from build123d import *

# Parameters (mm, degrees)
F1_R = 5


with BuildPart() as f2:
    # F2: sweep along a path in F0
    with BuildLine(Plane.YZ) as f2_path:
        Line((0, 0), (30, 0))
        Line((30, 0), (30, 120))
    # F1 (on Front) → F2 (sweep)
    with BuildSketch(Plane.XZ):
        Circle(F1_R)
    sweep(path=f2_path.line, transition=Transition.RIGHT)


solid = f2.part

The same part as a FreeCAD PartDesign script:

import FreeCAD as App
import Part
import Sketcher
from FreeCAD import Vector

doc = App.newDocument("Part")
body = doc.addObject("PartDesign::Body", "Body")

sketch1 = body.newObject("Sketcher::SketchObject", "Sketch")
sketch1.AttachmentSupport = (doc.getObject("XZ_Plane"), [""])
sketch1.MapMode = "FlatFace"
sketch1.addGeometry(Part.Circle(Vector(0, 0, 0), Vector(0, 0, 1), 5), False)
sketch1.addConstraint([
    Sketcher.Constraint("Coincident", 0, 3, -1, 1),
    Sketcher.Constraint("Diameter", 0, 10.0),
])

sketch2 = body.newObject("Sketcher::SketchObject", "Sketch001")
sketch2.AttachmentSupport = (doc.getObject("YZ_Plane"), [""])
sketch2.MapMode = "FlatFace"
sketch2.addGeometry([
    Part.LineSegment(Vector(0, 0, 0), Vector(30, 0, 0)),
    Part.LineSegment(Vector(30, 0, 0), Vector(30, 120, 0)),
], False)
sketch2.addConstraint([
    Sketcher.Constraint("Coincident", 0, 2, 1, 1),
    Sketcher.Constraint("Horizontal", 0),
    Sketcher.Constraint("Vertical", 1),
    Sketcher.Constraint("Coincident", 0, 1, -1, 1),
    Sketcher.Constraint("DistanceX", 0, 1, 0, 2, 30.0),
    Sketcher.Constraint("DistanceY", 1, 1, 1, 2, 120.0),
])
doc.recompute()

additivepipe = body.newObject("PartDesign::AdditivePipe", "AdditivePipe")
additivepipe.Profile = sketch1
additivepipe.Spine = (sketch2, ["Edge1", "Edge2"])
additivepipe.Transition = "Right corner"

doc.recompute()
